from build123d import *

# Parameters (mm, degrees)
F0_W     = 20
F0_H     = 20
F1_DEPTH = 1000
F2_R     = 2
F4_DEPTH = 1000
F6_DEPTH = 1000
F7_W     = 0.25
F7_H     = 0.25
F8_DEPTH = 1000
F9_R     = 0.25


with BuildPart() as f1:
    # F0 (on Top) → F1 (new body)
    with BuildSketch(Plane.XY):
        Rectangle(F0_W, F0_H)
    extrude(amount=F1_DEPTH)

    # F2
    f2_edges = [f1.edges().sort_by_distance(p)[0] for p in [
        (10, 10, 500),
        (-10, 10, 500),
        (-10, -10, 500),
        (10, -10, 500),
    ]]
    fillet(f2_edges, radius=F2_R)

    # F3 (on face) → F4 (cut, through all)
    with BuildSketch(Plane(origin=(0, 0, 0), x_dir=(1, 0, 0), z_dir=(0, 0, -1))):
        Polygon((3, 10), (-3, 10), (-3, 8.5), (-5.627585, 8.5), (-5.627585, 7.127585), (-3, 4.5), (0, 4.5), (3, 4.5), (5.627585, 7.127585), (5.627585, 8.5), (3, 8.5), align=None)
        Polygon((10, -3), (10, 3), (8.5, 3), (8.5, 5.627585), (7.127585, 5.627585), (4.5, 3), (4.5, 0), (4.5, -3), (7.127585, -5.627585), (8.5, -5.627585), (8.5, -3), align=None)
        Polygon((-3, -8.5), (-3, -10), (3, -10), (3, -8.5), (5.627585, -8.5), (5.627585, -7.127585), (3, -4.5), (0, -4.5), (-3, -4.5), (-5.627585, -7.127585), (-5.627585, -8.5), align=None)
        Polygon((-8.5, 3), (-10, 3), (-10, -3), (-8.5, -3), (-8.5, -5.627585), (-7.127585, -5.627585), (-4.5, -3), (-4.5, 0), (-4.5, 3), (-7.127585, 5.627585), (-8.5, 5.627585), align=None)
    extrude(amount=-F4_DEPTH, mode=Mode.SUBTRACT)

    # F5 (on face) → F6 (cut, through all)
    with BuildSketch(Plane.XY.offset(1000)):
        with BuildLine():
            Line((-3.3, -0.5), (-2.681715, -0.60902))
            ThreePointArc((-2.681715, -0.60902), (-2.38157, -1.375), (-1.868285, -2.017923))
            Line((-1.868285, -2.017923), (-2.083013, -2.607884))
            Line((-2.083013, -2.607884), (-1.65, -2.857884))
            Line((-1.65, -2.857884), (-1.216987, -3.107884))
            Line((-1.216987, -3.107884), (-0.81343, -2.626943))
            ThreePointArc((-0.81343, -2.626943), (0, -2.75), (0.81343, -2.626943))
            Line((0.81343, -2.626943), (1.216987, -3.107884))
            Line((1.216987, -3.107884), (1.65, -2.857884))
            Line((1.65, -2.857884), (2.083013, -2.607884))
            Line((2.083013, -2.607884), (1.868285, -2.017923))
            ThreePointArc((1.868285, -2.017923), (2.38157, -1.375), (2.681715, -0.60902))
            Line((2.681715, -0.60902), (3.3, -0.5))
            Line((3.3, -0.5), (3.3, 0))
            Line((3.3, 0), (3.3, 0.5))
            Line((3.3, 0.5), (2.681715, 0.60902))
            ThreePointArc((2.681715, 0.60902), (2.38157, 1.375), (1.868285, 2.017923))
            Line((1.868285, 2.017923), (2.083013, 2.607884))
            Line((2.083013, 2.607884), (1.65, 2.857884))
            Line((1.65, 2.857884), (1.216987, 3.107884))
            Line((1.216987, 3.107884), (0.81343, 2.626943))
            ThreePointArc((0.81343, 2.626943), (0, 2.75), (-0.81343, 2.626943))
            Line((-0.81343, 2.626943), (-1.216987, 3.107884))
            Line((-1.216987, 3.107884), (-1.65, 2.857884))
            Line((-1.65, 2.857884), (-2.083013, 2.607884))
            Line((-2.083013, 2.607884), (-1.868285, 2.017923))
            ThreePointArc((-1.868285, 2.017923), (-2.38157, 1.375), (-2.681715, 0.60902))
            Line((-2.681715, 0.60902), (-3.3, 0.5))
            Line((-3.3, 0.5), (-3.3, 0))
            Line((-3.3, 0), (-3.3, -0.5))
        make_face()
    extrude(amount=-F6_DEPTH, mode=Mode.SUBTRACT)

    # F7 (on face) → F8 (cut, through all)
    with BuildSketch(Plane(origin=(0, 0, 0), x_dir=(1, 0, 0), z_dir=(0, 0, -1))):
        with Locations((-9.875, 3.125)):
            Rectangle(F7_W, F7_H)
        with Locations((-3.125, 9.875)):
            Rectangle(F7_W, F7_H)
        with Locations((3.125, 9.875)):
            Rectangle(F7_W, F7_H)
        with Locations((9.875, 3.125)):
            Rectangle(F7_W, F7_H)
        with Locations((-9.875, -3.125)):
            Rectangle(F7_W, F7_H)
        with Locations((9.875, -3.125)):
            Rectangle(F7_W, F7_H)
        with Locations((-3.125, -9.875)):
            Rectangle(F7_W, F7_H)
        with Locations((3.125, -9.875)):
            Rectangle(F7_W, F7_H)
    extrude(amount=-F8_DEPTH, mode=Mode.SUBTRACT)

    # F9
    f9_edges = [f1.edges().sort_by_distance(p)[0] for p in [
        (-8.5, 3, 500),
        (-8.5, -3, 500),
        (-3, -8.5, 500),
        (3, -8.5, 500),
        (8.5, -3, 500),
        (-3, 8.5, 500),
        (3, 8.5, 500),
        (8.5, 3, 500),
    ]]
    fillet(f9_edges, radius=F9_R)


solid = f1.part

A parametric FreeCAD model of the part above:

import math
import FreeCAD as App
import Part
import Sketcher
Q = App.Units.Quantity


def edges_at(feature, points):
    """Names of the edges that pass closest to the given points."""
    edges = feature.Shape.Edges
    near = lambda p: min(range(len(edges)), key=lambda i: edges[i].distToShape(Part.Vertex(*p))[0])
    return sorted({f"Edge{near(p) + 1}" for p in points})

doc = App.newDocument("Part")
body = doc.addObject("PartDesign::Body", "Body")

# Sketch on XY plane
sketch1 = doc.addObject("Sketcher::SketchObject", "Sketch")
body.addObject(sketch1)
sketch1.AttachmentSupport = (doc.XY_Plane, [""])
sketch1.MapMode = "FlatFace"
sketch1.addGeometry(Part.LineSegment(App.Vector(-10, 10, 0), App.Vector(-10, -10, 0)), False)
sketch1.addGeometry(Part.LineSegment(App.Vector(-10, -10, 0), App.Vector(10, -10, 0)), False)
sketch1.addGeometry(Part.LineSegment(App.Vector(10, -10, 0), App.Vector(10, 10, 0)), False)
sketch1.addGeometry(Part.LineSegment(App.Vector(10, 10, 0), App.Vector(-10, 10, 0)), False)
sketch1.addConstraint(Sketcher.Constraint("Coincident", 0, 2, 1, 1))
sketch1.addConstraint(Sketcher.Constraint("Coincident", 1, 2, 2, 1))
sketch1.addConstraint(Sketcher.Constraint("Coincident", 2, 2, 3, 1))
sketch1.addConstraint(Sketcher.Constraint("Coincident", 3, 2, 0, 1))
sketch1.addConstraint(Sketcher.Constraint("Vertical", 0))
sketch1.addConstraint(Sketcher.Constraint("Horizontal", 1))
sketch1.addConstraint(Sketcher.Constraint("Vertical", 2))
sketch1.addConstraint(Sketcher.Constraint("Horizontal", 3))
sketch1.addConstraint(Sketcher.Constraint("Symmetric", 0, 2, 2, 2, -1, 1))
sketch1.addConstraint(Sketcher.Constraint("Equal", 3, 0))
sketch1.addConstraint(Sketcher.Constraint("DistanceX", 1, 1, 1, 2, Q("20 mm")))
pad1 = doc.addObject("PartDesign::Pad", "Pad")
body.addObject(pad1)
pad1.Profile = sketch1
pad1.Length = 1000
doc.recompute()

fillet = doc.addObject("PartDesign::Fillet", "Fillet")
body.addObject(fillet)
fillet.Base = (pad1, edges_at(pad1, [
    (10, 10, 500),
    (-10, 10, 500),
    (-10, -10, 500),
    (10, -10, 500),
]))
fillet.Radius = 2

# Sketch on XY plane
sketch2 = doc.addObject("Sketcher::SketchObject", "Sketch001")
body.addObject(sketch2)
sketch2.AttachmentSupport = (doc.XY_Plane, [""])
sketch2.MapMode = "FlatFace"
sketch2.addGeometry(Part.LineSegment(App.Vector(3, -10, 0), App.Vector(-3, -10, 0)), False)
sketch2.addGeometry(Part.LineSegment(App.Vector(-3, -10, 0), App.Vector(-3, -8.5, 0)), False)
sketch2.addGeometry(Part.LineSegment(App.Vector(-3, -8.5, 0), App.Vector(-5.6, -8.5, 0)), False)
sketch2.addGeometry(Part.LineSegment(App.Vector(-5.6, -8.5, 0), App.Vector(-5.6, -7.1, 0)), False)
sketch2.addGeometry(Part.LineSegment(App.Vector(-5.6, -7.1, 0), App.Vector(-3, -4.5, 0)), False)
sketch2.addGeometry(Part.LineSegment(App.Vector(-3, -4.5, 0), App.Vector(3, -4.5, 0)), False)
sketch2.addGeometry(Part.LineSegment(App.Vector(3, -4.5, 0), App.Vector(5.6, -7.1, 0)), False)
sketch2.addGeometry(Part.LineSegment(App.Vector(5.6, -7.1, 0), App.Vector(5.6, -8.5, 0)), False)
sketch2.addGeometry(Part.LineSegment(App.Vector(5.6, -8.5, 0), App.Vector(3, -8.5, 0)), False)
sketch2.addGeometry(Part.LineSegment(App.Vector(3, -8.5, 0), App.Vector(3, -10, 0)), False)
sketch2.addGeometry(Part.LineSegment(App.Vector(10, 3, 0), App.Vector(10, -3, 0)), False)
sketch2.addGeometry(Part.LineSegment(App.Vector(10, -3, 0), App.Vector(8.5, -3, 0)), False)
sketch2.addGeometry(Part.LineSegment(App.Vector(8.5, -3, 0), App.Vector(8.5, -5.6, 0)), False)
sketch2.addGeometry(Part.LineSegment(App.Vector(8.5, -5.6, 0), App.Vector(7.1, -5.6, 0)), False)
sketch2.addGeometry(Part.LineSegment(App.Vector(7.1, -5.6, 0), App.Vector(4.5, -3, 0)), False)
sketch2.addGeometry(Part.LineSegment(App.Vector(4.5, -3, 0), App.Vector(4.5, 3, 0)), False)
sketch2.addGeometry(Part.LineSegment(App.Vector(4.5, 3, 0), App.Vector(7.1, 5.6, 0)), False)
sketch2.addGeometry(Part.LineSegment(App.Vector(7.1, 5.6, 0), App.Vector(8.5, 5.6, 0)), False)
sketch2.addGeometry(Part.LineSegment(App.Vector(8.5, 5.6, 0), App.Vector(8.5, 3, 0)), False)
sketch2.addGeometry(Part.LineSegment(App.Vector(8.5, 3, 0), App.Vector(10, 3, 0)), False)
sketch2.addGeometry(Part.LineSegment(App.Vector(-3, 8.5, 0), App.Vector(-3, 10, 0)), False)
sketch2.addGeometry(Part.LineSegment(App.Vector(-3, 10, 0), App.Vector(3, 10, 0)), False)
sketch2.addGeometry(Part.LineSegment(App.Vector(3, 10, 0), App.Vector(3, 8.5, 0)), False)
sketch2.addGeometry(Part.LineSegment(App.Vector(3, 8.5, 0), App.Vector(5.6, 8.5, 0)), False)
sketch2.addGeometry(Part.LineSegment(App.Vector(5.6, 8.5, 0), App.Vector(5.6, 7.1, 0)), False)
sketch2.addGeometry(Part.LineSegment(App.Vector(5.6, 7.1, 0), App.Vector(3, 4.5, 0)), False)
sketch2.addGeometry(Part.LineSegment(App.Vector(3, 4.5, 0), App.Vector(-3, 4.5, 0)), False)
sketch2.addGeometry(Part.LineSegment(App.Vector(-3, 4.5, 0), App.Vector(-5.6, 7.1, 0)), False)
sketch2.addGeometry(Part.LineSegment(App.Vector(-5.6, 7.1, 0), App.Vector(-5.6, 8.5, 0)), False)
sketch2.addGeometry(Part.LineSegment(App.Vector(-5.6, 8.5, 0), App.Vector(-3, 8.5, 0)), False)
sketch2.addGeometry(Part.LineSegment(App.Vector(-8.5, -3, 0), App.Vector(-10, -3, 0)), False)
sketch2.addGeometry(Part.LineSegment(App.Vector(-10, -3, 0), App.Vector(-10, 3, 0)), False)
sketch2.addGeometry(Part.LineSegment(App.Vector(-10, 3, 0), App.Vector(-8.5, 3, 0)), False)
sketch2.addGeometry(Part.LineSegment(App.Vector(-8.5, 3, 0), App.Vector(-8.5, 5.6, 0)), False)
sketch2.addGeometry(Part.LineSegment(App.Vector(-8.5, 5.6, 0), App.Vector(-7.1, 5.6, 0)), False)
sketch2.addGeometry(Part.LineSegment(App.Vector(-7.1, 5.6, 0), App.Vector(-4.5, 3, 0)), False)
sketch2.addGeometry(Part.LineSegment(App.Vector(-4.5, 3, 0), App.Vector(-4.5, -3, 0)), False)
sketch2.addGeometry(Part.LineSegment(App.Vector(-4.5, -3, 0), App.Vector(-7.1, -5.6, 0)), False)
sketch2.addGeometry(Part.LineSegment(App.Vector(-7.1, -5.6, 0), App.Vector(-8.5, -5.6, 0)), False)
sketch2.addGeometry(Part.LineSegment(App.Vector(-8.5, -5.6, 0), App.Vector(-8.5, -3, 0)), False)
sketch2.addConstraint(Sketcher.Constraint("Coincident", 0, 2, 1, 1))
sketch2.addConstraint(Sketcher.Constraint("Coincident", 1, 2, 2, 1))
sketch2.addConstraint(Sketcher.Constraint("Coincident", 2, 2, 3, 1))
sketch2.addConstraint(Sketcher.Constraint("Coincident", 3, 2, 4, 1))
sketch2.addConstraint(Sketcher.Constraint("Coincident", 4, 2, 5, 1))
sketch2.addConstraint(Sketcher.Constraint("Coincident", 5, 2, 6, 1))
sketch2.addConstraint(Sketcher.Constraint("Coincident", 6, 2, 7, 1))
sketch2.addConstraint(Sketcher.Constraint("Coincident", 7, 2, 8, 1))
sketch2.addConstraint(Sketcher.Constraint("Coincident", 8, 2, 9, 1))
sketch2.addConstraint(Sketcher.Constraint("Coincident", 9, 2, 0, 1))
sketch2.addConstraint(Sketcher.Constraint("Coincident", 10, 2, 11, 1))
sketch2.addConstraint(Sketcher.Constraint("Coincident", 11, 2, 12, 1))
sketch2.addConstraint(Sketcher.Constraint("Coincident", 12, 2, 13, 1))
sketch2.addConstraint(Sketcher.Constraint("Coincident", 13, 2, 14, 1))
sketch2.addConstraint(Sketcher.Constraint("Coincident", 14, 2, 15, 1))
sketch2.addConstraint(Sketcher.Constraint("Coincident", 15, 2, 16, 1))
sketch2.addConstraint(Sketcher.Constraint("Coincident", 16, 2, 17, 1))
sketch2.addConstraint(Sketcher.Constraint("Coincident", 17, 2, 18, 1))
sketch2.addConstraint(Sketcher.Constraint("Coincident", 18, 2, 19, 1))
sketch2.addConstraint(Sketcher.Constraint("Coincident", 19, 2, 10, 1))
sketch2.addConstraint(Sketcher.Constraint("Coincident", 20, 2, 21, 1))
sketch2.addConstraint(Sketcher.Constraint("Coincident", 21, 2, 22, 1))
sketch2.addConstraint(Sketcher.Constraint("Coincident", 22, 2, 23, 1))
sketch2.addConstraint(Sketcher.Constraint("Coincident", 23, 2, 24, 1))
sketch2.addConstraint(Sketcher.Constraint("Coincident", 24, 2, 25, 1))
sketch2.addConstraint(Sketcher.Constraint("Coincident", 25, 2, 26, 1))
sketch2.addConstraint(Sketcher.Constraint("Coincident", 26, 2, 27, 1))
sketch2.addConstraint(Sketcher.Constraint("Coincident", 27, 2, 28, 1))
sketch2.addConstraint(Sketcher.Constraint("Coincident", 28, 2, 29, 1))
sketch2.addConstraint(Sketcher.Constraint("Coincident", 29, 2, 20, 1))
sketch2.addConstraint(Sketcher.Constraint("Coincident", 30, 2, 31, 1))
sketch2.addConstraint(Sketcher.Constraint("Coincident", 31, 2, 32, 1))
sketch2.addConstraint(Sketcher.Constraint("Coincident", 32, 2, 33, 1))
sketch2.addConstraint(Sketcher.Constraint("Coincident", 33, 2, 34, 1))
sketch2.addConstraint(Sketcher.Constraint("Coincident", 34, 2, 35, 1))
sketch2.addConstraint(Sketcher.Constraint("Coincident", 35, 2, 36, 1))
sketch2.addConstraint(Sketcher.Constraint("Coincident", 36, 2, 37, 1))
sketch2.addConstraint(Sketcher.Constraint("Coincident", 37, 2, 38, 1))
sketch2.addConstraint(Sketcher.Constraint("Coincident", 38, 2, 39, 1))
sketch2.addConstraint(Sketcher.Constraint("Coincident", 39, 2, 30, 1))
sketch2.addConstraint(Sketcher.Constraint("Horizontal", 0))
sketch2.addConstraint(Sketcher.Constraint("Vertical", 1))
sketch2.addConstraint(Sketcher.Constraint("Horizontal", 2))
sketch2.addConstraint(Sketcher.Constraint("Vertical", 3))
sketch2.addConstraint(Sketcher.Constraint("Horizontal", 5))
sketch2.addConstraint(Sketcher.Constraint("Vertical", 7))
sketch2.addConstraint(Sketcher.Constraint("Horizontal", 8))
sketch2.addConstraint(Sketcher.Constraint("Vertical", 9))
sketch2.addConstraint(Sketcher.Constraint("Vertical", 10))
sketch2.addConstraint(Sketcher.Constraint("Horizontal", 11))
sketch2.addConstraint(Sketcher.Constraint("Vertical", 12))
sketch2.addConstraint(Sketcher.Constraint("Horizontal", 13))
sketch2.addConstraint(Sketcher.Constraint("Vertical", 15))
sketch2.addConstraint(Sketcher.Constraint("Horizontal", 17))
sketch2.addConstraint(Sketcher.Constraint("Vertical", 18))
sketch2.addConstraint(Sketcher.Constraint("Horizontal", 19))
sketch2.addConstraint(Sketcher.Constraint("Vertical", 20))
sketch2.addConstraint(Sketcher.Constraint("Horizontal", 21))
sketch2.addConstraint(Sketcher.Constraint("Vertical", 22))
sketch2.addConstraint(Sketcher.Constraint("Horizontal", 23))
sketch2.addConstraint(Sketcher.Constraint("Vertical", 24))
sketch2.addConstraint(Sketcher.Constraint("Horizontal", 26))
sketch2.addConstraint(Sketcher.Constraint("Vertical", 28))
sketch2.addConstraint(Sketcher.Constraint("Horizontal", 29))
sketch2.addConstraint(Sketcher.Constraint("Horizontal", 30))
sketch2.addConstraint(Sketcher.Constraint("Vertical", 31))
sketch2.addConstraint(Sketcher.Constraint("Horizontal", 32))
sketch2.addConstraint(Sketcher.Constraint("Vertical", 33))
sketch2.addConstraint(Sketcher.Constraint("Horizontal", 34))
sketch2.addConstraint(Sketcher.Constraint("Vertical", 36))
sketch2.addConstraint(Sketcher.Constraint("Horizontal", 38))
sketch2.addConstraint(Sketcher.Constraint("Vertical", 39))
sketch2.addConstraint(Sketcher.Constraint("Symmetric", 9, 2, 20, 2, -1, 1))
sketch2.addConstraint(Sketcher.Constraint("Symmetric", 1, 2, 22, 2, -1, 1))
sketch2.addConstraint(Sketcher.Constraint("Symmetric", 3, 2, 24, 2, -1, 1))
sketch2.addConstraint(Sketcher.Constraint("Symmetric", 4, 2, 25, 2, -1, 1))
sketch2.addConstraint(Sketcher.Constraint("Symmetric", 6, 2, 27, 2, -1, 1))
sketch2.addConstraint(Sketcher.Constraint("Symmetric", 19, 2, 30, 2, -1, 1))
sketch2.addConstraint(Sketcher.Constraint("Symmetric", 11, 2, 32, 2, -1, 1))
sketch2.addConstraint(Sketcher.Constraint("Symmetric", 13, 2, 34, 2, -1, 1))
sketch2.addConstraint(Sketcher.Constraint("Symmetric", 14, 2, 35, 2, -1, 1))
sketch2.addConstraint(Sketcher.Constraint("Symmetric", 16, 2, 37, 2, -1, 1))
sketch2.addConstraint(Sketcher.Constraint("Symmetric", 3, 2, 6, 2, -2))
sketch2.addConstraint(Sketcher.Constraint("Symmetric", 1, 2, 8, 2, -2))
sketch2.addConstraint(Sketcher.Constraint("Symmetric", 18, 2, 32, 2, -2))
sketch2.addConstraint(Sketcher.Constraint("Symmetric", 16, 2, 34, 2, -2))
sketch2.addConstraint(Sketcher.Constraint("Perpendicular", 4, 6))
sketch2.addConstraint(Sketcher.Constraint("Parallel", 6, 14))
sketch2.addConstraint(Sketcher.Constraint("Perpendicular", 14, 16))
sketch2.addConstraint(Sketcher.Constraint("Perpendicular", 25, 27))
sketch2.addConstraint(Sketcher.Constraint("Perpendicular", 35, 37))
sketch2.addConstraint(Sketcher.Constraint("Horizontal", 11, 2, 14, 2))
sketch2.addConstraint(Sketcher.Constraint("Horizontal", 15, 2, 18, 2))
sketch2.addConstraint(Sketcher.Constraint("Horizontal", 23, 2, 28, 2))
sketch2.addConstraint(Sketcher.Constraint("Vertical", 1, 2, 4, 2))
sketch2.addConstraint(Sketcher.Constraint("Vertical", 33, 2, 38, 2))
sketch2.addConstraint(Sketcher.Constraint("Equal", 32, 1))
sketch2.addConstraint(Sketcher.Constraint("Equal", 38, 3))
sketch2.addConstraint(Sketcher.Constraint("Equal", 26, 10))
sketch2.addConstraint(Sketcher.Constraint("Equal", 29, 12))
sketch2.addConstraint(Sketcher.Constraint("DistanceX", 0, 2, 0, 1, Q("6 mm")))
sketch2.addConstraint(Sketcher.Constraint("DistanceX", 11, 2, 11, 1, Q("1.5 mm")))
sketch2.addConstraint(Sketcher.Constraint("DistanceY", 0, 2, -1, 1, Q("10 mm")))
sketch2.addConstraint(Sketcher.Constraint("DistanceX", -1, 1, 10, 2, Q("10 mm")))
sketch2.addConstraint(Sketcher.Constraint("DistanceY", 1, 2, 4, 2, Q("4 mm")))
sketch2.addConstraint(Sketcher.Constraint("DistanceX", 2, 2, 2, 1, Q("2.627585 mm")))
pocket1 = doc.addObject("PartDesign::Pocket", "Pocket")
body.addObject(pocket1)
pocket1.Profile = sketch2
pocket1.Type = "ThroughAll"
pocket1.Reversed = True

# Sketch on XY plane
sketch3 = doc.addObject("Sketcher::SketchObject", "Sketch002")
body.addObject(sketch3)
sketch3.AttachmentSupport = (doc.XY_Plane, [""])
sketch3.MapMode = "FlatFace"
sketch3.AttachmentOffset = App.Placement(App.Vector(0, 0, 1000), App.Rotation())
sketch3.addGeometry(Part.LineSegment(App.Vector(-3.3, -0.5, 0), App.Vector(-2.681715, -0.60902, 0)), False)
sketch3.addGeometry(Part.ArcOfCircle(Part.Circle(App.Vector(0.000003, 0.000001, 0), App.Vector(0, 0, 1), 2.750003), math.radians(-167.205084), math.radians(-132.794948)), False)
sketch3.addGeometry(Part.LineSegment(App.Vector(-1.868285, -2.017923, 0), App.Vector(-2.083013, -2.607884, 0)), False)
sketch3.addGeometry(Part.LineSegment(App.Vector(-2.083013, -2.607884, 0), App.Vector(-1.216987, -3.107884, 0)), False)
sketch3.addGeometry(Part.LineSegment(App.Vector(-1.216987, -3.107884, 0), App.Vector(-0.81343, -2.626943, 0)), False)
sketch3.addGeometry(Part.ArcOfCircle(Part.Circle(App.Vector(0, -0.000009, 0), App.Vector(0, 0, 1), 2.749991), math.radians(-107.205134), math.radians(-72.794866)), False)
sketch3.addGeometry(Part.LineSegment(App.Vector(0.81343, -2.626943, 0), App.Vector(1.216987, -3.107884, 0)), False)
sketch3.addGeometry(Part.LineSegment(App.Vector(1.216987, -3.107884, 0), App.Vector(2.083013, -2.607884, 0)), False)
sketch3.addGeometry(Part.LineSegment(App.Vector(2.083013, -2.607884, 0), App.Vector(1.868285, -2.017923, 0)), False)
sketch3.addGeometry(Part.ArcOfCircle(Part.Circle(App.Vector(-0.000003, 0.000001, 0), App.Vector(0, 0, 1), 2.750003), math.radians(-47.205052), math.radians(-12.794916)), False)
sketch3.addGeometry(Part.LineSegment(App.Vector(2.681715, -0.60902, 0), App.Vector(3.3, -0.5, 0)), False)
sketch3.addGeometry(Part.LineSegment(App.Vector(3.3, -0.5, 0), App.Vector(3.3, 0.5, 0)), False)
sketch3.addGeometry(Part.LineSegment(App.Vector(3.3, 0.5, 0), App.Vector(2.681715, 0.60902, 0)), False)
sketch3.addGeometry(Part.ArcOfCircle(Part.Circle(App.Vector(-0.000003, -0.000001, 0), App.Vector(0, 0, 1), 2.750003), math.radians(12.794916), math.radians(47.205052)), False)
sketch3.addGeometry(Part.LineSegment(App.Vector(1.868285, 2.017923, 0), App.Vector(2.083013, 2.607884, 0)), False)
sketch3.addGeometry(Part.LineSegment(App.Vector(2.083013, 2.607884, 0), App.Vector(1.216987, 3.107884, 0)), False)
sketch3.addGeometry(Part.LineSegment(App.Vector(1.216987, 3.107884, 0), App.Vector(0.81343, 2.626943, 0)), False)
sketch3.addGeometry(Part.ArcOfCircle(Part.Circle(App.Vector(0, 0.000009, 0), App.Vector(0, 0, 1), 2.749991), math.radians(72.794866), math.radians(107.205134)), False)
sketch3.addGeometry(Part.LineSegment(App.Vector(-0.81343, 2.626943, 0), App.Vector(-1.216987, 3.107884, 0)), False)
sketch3.addGeometry(Part.LineSegment(App.Vector(-1.216987, 3.107884, 0), App.Vector(-2.083013, 2.607884, 0)), False)
sketch3.addGeometry(Part.LineSegment(App.Vector(-2.083013, 2.607884, 0), App.Vector(-1.868285, 2.017923, 0)), False)
sketch3.addGeometry(Part.ArcOfCircle(Part.Circle(App.Vector(0.000003, -0.000001, 0), App.Vector(0, 0, 1), 2.750003), math.radians(132.794948), math.radians(167.205084)), False)
sketch3.addGeometry(Part.LineSegment(App.Vector(-2.681715, 0.60902, 0), App.Vector(-3.3, 0.5, 0)), False)
sketch3.addGeometry(Part.LineSegment(App.Vector(-3.3, 0.5, 0), App.Vector(-3.3, -0.5, 0)), False)
sketch3.addConstraint(Sketcher.Constraint("Coincident", 0, 2, 1, 1))
sketch3.addConstraint(Sketcher.Constraint("Coincident", 1, 2, 2, 1))
sketch3.addConstraint(Sketcher.Constraint("Coincident", 2, 2, 3, 1))
sketch3.addConstraint(Sketcher.Constraint("Coincident", 3, 2, 4, 1))
sketch3.addConstraint(Sketcher.Constraint("Coincident", 4, 2, 5, 1))
sketch3.addConstraint(Sketcher.Constraint("Coincident", 5, 2, 6, 1))
sketch3.addConstraint(Sketcher.Constraint("Coincident", 6, 2, 7, 1))
sketch3.addConstraint(Sketcher.Constraint("Coincident", 7, 2, 8, 1))
sketch3.addConstraint(Sketcher.Constraint("Coincident", 8, 2, 9, 1))
sketch3.addConstraint(Sketcher.Constraint("Coincident", 9, 2, 10, 1))
sketch3.addConstraint(Sketcher.Constraint("Coincident", 10, 2, 11, 1))
sketch3.addConstraint(Sketcher.Constraint("Coincident", 11, 2, 12, 1))
sketch3.addConstraint(Sketcher.Constraint("Coincident", 12, 2, 13, 1))
sketch3.addConstraint(Sketcher.Constraint("Coincident", 13, 2, 14, 1))
sketch3.addConstraint(Sketcher.Constraint("Coincident", 14, 2, 15, 1))
sketch3.addConstraint(Sketcher.Constraint("Coincident", 15, 2, 16, 1))
sketch3.addConstraint(Sketcher.Constraint("Coincident", 16, 2, 17, 1))
sketch3.addConstraint(Sketcher.Constraint("Coincident", 17, 2, 18, 1))
sketch3.addConstraint(Sketcher.Constraint("Coincident", 18, 2, 19, 1))
sketch3.addConstraint(Sketcher.Constraint("Coincident", 19, 2, 20, 1))
sketch3.addConstraint(Sketcher.Constraint("Coincident", 20, 2, 21, 1))
sketch3.addConstraint(Sketcher.Constraint("Coincident", 21, 2, 22, 1))
sketch3.addConstraint(Sketcher.Constraint("Coincident", 22, 2, 23, 1))
sketch3.addConstraint(Sketcher.Constraint("Coincident", 23, 2, 0, 1))
sketch3.addConstraint(Sketcher.Constraint("Vertical", 11))
sketch3.addConstraint(Sketcher.Constraint("Vertical", 23))
sketch3.addConstraint(Sketcher.Constraint("Coincident", 1, 3, -1, 1))
sketch3.addConstraint(Sketcher.Constraint("Coincident", 5, 3, -1, 1))
sketch3.addConstraint(Sketcher.Constraint("Coincident", 9, 3, -1, 1))
sketch3.addConstraint(Sketcher.Constraint("Coincident", 13, 3, -1, 1))
sketch3.addConstraint(Sketcher.Constraint("Coincident", 17, 3, -1, 1))
sketch3.addConstraint(Sketcher.Constraint("Coincident", 21, 3, -1, 1))
sketch3.addConstraint(Sketcher.Constraint("DistanceY", 11, 1, 11, 2, Q("1 mm")))
sketch3.addConstraint(Sketcher.Constraint("DistanceY", 23, 2, 23, 1, Q("1 mm")))
sketch3.addConstraint(Sketcher.Constraint("Distance", 3, Q("1.000001 mm")))
sketch3.addConstraint(Sketcher.Constraint("Distance", 7, Q("1.000001 mm")))
sketch3.addConstraint(Sketcher.Constraint("Distance", 15, Q("1.000001 mm")))
sketch3.addConstraint(Sketcher.Constraint("Distance", 19, Q("1.000001 mm")))
sketch3.addConstraint(Sketcher.Constraint("DistanceX", -1, 1, 10, 2, Q("3.3 mm")))
sketch3.addConstraint(Sketcher.Constraint("DistanceY", 10, 2, -1, 1, Q("0.5 mm")))
sketch3.addConstraint(Sketcher.Constraint("DistanceX", 22, 2, -1, 1, Q("3.3 mm")))
sketch3.addConstraint(Sketcher.Constraint("DistanceY", -1, 1, 22, 2, Q("0.5 mm")))
sketch3.addConstraint(Sketcher.Constraint("DistanceY", 3, 2, 2, 2, Q("0.5 mm")))
sketch3.addConstraint(Sketcher.Constraint("DistanceY", 6, 2, 7, 2, Q("0.5 mm")))
sketch3.addConstraint(Sketcher.Constraint("DistanceY", 14, 2, 15, 2, Q("0.5 mm")))
sketch3.addConstraint(Sketcher.Constraint("DistanceY", 19, 2, 18, 2, Q("0.5 mm")))
sketch3.addConstraint(Sketcher.Constraint("Radius", 5, Q("2.749991 mm")))
sketch3.addConstraint(Sketcher.Constraint("Radius", 17, Q("2.749991 mm")))
sketch3.addConstraint(Sketcher.Constraint("Radius", 1, Q("2.750003 mm")))
sketch3.addConstraint(Sketcher.Constraint("Radius", 9, Q("2.750003 mm")))
sketch3.addConstraint(Sketcher.Constraint("Radius", 13, Q("2.750003 mm")))
sketch3.addConstraint(Sketcher.Constraint("Radius", 21, Q("2.750003 mm")))
sketch3.addConstraint(Sketcher.Constraint("DistanceX", 1, 2, 3, 2, Q("0.651298 mm")))
sketch3.addConstraint(Sketcher.Constraint("DistanceX", 15, 2, 13, 2, Q("0.651298 mm")))
sketch3.addConstraint(Sketcher.Constraint("DistanceY", 0, 2, -1, 1, Q("0.60902 mm")))
sketch3.addConstraint(Sketcher.Constraint("DistanceX", 4, 2, -1, 1, Q("0.81343 mm")))
sketch3.addConstraint(Sketcher.Constraint("DistanceX", -1, 1, 5, 2, Q("0.81343 mm")))
sketch3.addConstraint(Sketcher.Constraint("DistanceY", 9, 2, -1, 1, Q("0.60902 mm")))
sketch3.addConstraint(Sketcher.Constraint("DistanceY", -1, 1, 12, 2, Q("0.60902 mm")))
sketch3.addConstraint(Sketcher.Constraint("DistanceX", -1, 1, 16, 2, Q("0.81343 mm")))
sketch3.addConstraint(Sketcher.Constraint("DistanceX", 17, 2, -1, 1, Q("0.81343 mm")))
sketch3.addConstraint(Sketcher.Constraint("DistanceY", -1, 1, 21, 2, Q("0.60902 mm")))
sketch3.addConstraint(Sketcher.Constraint("DistanceX", 0, 2, 1, 2, Q("0.81343 mm")))
sketch3.addConstraint(Sketcher.Constraint("DistanceY", 2, 2, 1, 2, Q("0.589961 mm")))
sketch3.addConstraint(Sketcher.Constraint("DistanceY", 6, 2, 5, 2, Q("0.480941 mm")))
sketch3.addConstraint(Sketcher.Constraint("DistanceX", 21, 3, 7, 2, Q("2.08301 mm")))
sketch3.addConstraint(Sketcher.Constraint("DistanceY", 7, 2, 8, 2, Q("0.589961 mm")))
sketch3.addConstraint(Sketcher.Constraint("DistanceX", 13, 2, 12, 2, Q("0.81343 mm")))
sketch3.addConstraint(Sketcher.Constraint("DistanceY", 13, 2, 14, 2, Q("0.589961 mm")))
sketch3.addConstraint(Sketcher.Constraint("DistanceY", 17, 2, 18, 2, Q("0.480941 mm")))
sketch3.addConstraint(Sketcher.Constraint("DistanceY", 20, 2, 19, 2, Q("0.589961 mm")))
sketch3.addConstraint(Sketcher.Constraint("Distance", 18, Q("0.627824 mm")))
pocket2 = doc.addObject("PartDesign::Pocket", "Pocket001")
body.addObject(pocket2)
pocket2.Profile = sketch3
pocket2.Type = "ThroughAll"

# Sketch on XY plane
sketch4 = doc.addObject("Sketcher::SketchObject", "Sketch003")
body.addObject(sketch4)
sketch4.AttachmentSupport = (doc.XY_Plane, [""])
sketch4.MapMode = "FlatFace"
sketch4.addGeometry(Part.LineSegment(App.Vector(-10, -3.25, 0), App.Vector(-10, -3, 0)), False)
sketch4.addGeometry(Part.LineSegment(App.Vector(-10, -3, 0), App.Vector(-9.75, -3, 0)), False)
sketch4.addGeometry(Part.LineSegment(App.Vector(-9.75, -3, 0), App.Vector(-9.75, -3.25, 0)), False)
sketch4.addGeometry(Part.LineSegment(App.Vector(-9.75, -3.25, 0), App.Vector(-10, -3.25, 0)), False)
sketch4.addGeometry(Part.LineSegment(App.Vector(-3.25, -10, 0), App.Vector(-3.25, -9.75, 0)), False)
sketch4.addGeometry(Part.LineSegment(App.Vector(-3.25, -9.75, 0), App.Vector(-3, -9.75, 0)), False)
sketch4.addGeometry(Part.LineSegment(App.Vector(-3, -9.75, 0), App.Vector(-3, -10, 0)), False)
sketch4.addGeometry(Part.LineSegment(App.Vector(-3, -10, 0), App.Vector(-3.25, -10, 0)), False)
sketch4.addGeometry(Part.LineSegment(App.Vector(3, -10, 0), App.Vector(3, -9.75, 0)), False)
sketch4.addGeometry(Part.LineSegment(App.Vector(3, -9.75, 0), App.Vector(3.25, -9.75, 0)), False)
sketch4.addGeometry(Part.LineSegment(App.Vector(3.25, -9.75, 0), App.Vector(3.25, -10, 0)), False)
sketch4.addGeometry(Part.LineSegment(App.Vector(3.25, -10, 0), App.Vector(3, -10, 0)), False)
sketch4.addGeometry(Part.LineSegment(App.Vector(9.75, -3.25, 0), App.Vector(9.75, -3, 0)), False)
sketch4.addGeometry(Part.LineSegment(App.Vector(9.75, -3, 0), App.Vector(10, -3, 0)), False)
sketch4.addGeometry(Part.LineSegment(App.Vector(10, -3, 0), App.Vector(10, -3.25, 0)), False)
sketch4.addGeometry(Part.LineSegment(App.Vector(10, -3.25, 0), App.Vector(9.75, -3.25, 0)), False)
sketch4.addGeometry(Part.LineSegment(App.Vector(-10, 3, 0), App.Vector(-10, 3.25, 0)), False)
sketch4.addGeometry(Part.LineSegment(App.Vector(-10, 3.25, 0), App.Vector(-9.75, 3.25, 0)), False)
sketch4.addGeometry(Part.LineSegment(App.Vector(-9.75, 3.25, 0), App.Vector(-9.75, 3, 0)), False)
sketch4.addGeometry(Part.LineSegment(App.Vector(-9.75, 3, 0), App.Vector(-10, 3, 0)), False)
sketch4.addGeometry(Part.LineSegment(App.Vector(9.75, 3, 0), App.Vector(9.75, 3.25, 0)), False)
sketch4.addGeometry(Part.LineSegment(App.Vector(9.75, 3.25, 0), App.Vector(10, 3.25, 0)), False)
sketch4.addGeometry(Part.LineSegment(App.Vector(10, 3.25, 0), App.Vector(10, 3, 0)), False)
sketch4.addGeometry(Part.LineSegment(App.Vector(10, 3, 0), App.Vector(9.75, 3, 0)), False)
sketch4.addGeometry(Part.LineSegment(App.Vector(-3.25, 9.75, 0), App.Vector(-3.25, 10, 0)), False)
sketch4.addGeometry(Part.LineSegment(App.Vector(-3.25, 10, 0), App.Vector(-3, 10, 0)), False)
sketch4.addGeometry(Part.LineSegment(App.Vector(-3, 10, 0), App.Vector(-3, 9.75, 0)), False)
sketch4.addGeometry(Part.LineSegment(App.Vector(-3, 9.75, 0), App.Vector(-3.25, 9.75, 0)), False)
sketch4.addGeometry(Part.LineSegment(App.Vector(3, 9.75, 0), App.Vector(3, 10, 0)), False)
sketch4.addGeometry(Part.LineSegment(App.Vector(3, 10, 0), App.Vector(3.25, 10, 0)), False)
sketch4.addGeometry(Part.LineSegment(App.Vector(3.25, 10, 0), App.Vector(3.25, 9.75, 0)), False)
sketch4.addGeometry(Part.LineSegment(App.Vector(3.25, 9.75, 0), App.Vector(3, 9.75, 0)), False)
sketch4.addConstraint(Sketcher.Constraint("Coincident", 0, 2, 1, 1))
sketch4.addConstraint(Sketcher.Constraint("Coincident", 1, 2, 2, 1))
sketch4.addConstraint(Sketcher.Constraint("Coincident", 2, 2, 3, 1))
sketch4.addConstraint(Sketcher.Constraint("Coincident", 3, 2, 0, 1))
sketch4.addConstraint(Sketcher.Constraint("Coincident", 4, 2, 5, 1))
sketch4.addConstraint(Sketcher.Constraint("Coincident", 5, 2, 6, 1))
sketch4.addConstraint(Sketcher.Constraint("Coincident", 6, 2, 7, 1))
sketch4.addConstraint(Sketcher.Constraint("Coincident", 7, 2, 4, 1))
sketch4.addConstraint(Sketcher.Constraint("Coincident", 8, 2, 9, 1))
sketch4.addConstraint(Sketcher.Constraint("Coincident", 9, 2, 10, 1))
sketch4.addConstraint(Sketcher.Constraint("Coincident", 10, 2, 11, 1))
sketch4.addConstraint(Sketcher.Constraint("Coincident", 11, 2, 8, 1))
sketch4.addConstraint(Sketcher.Constraint("Coincident", 12, 2, 13, 1))
sketch4.addConstraint(Sketcher.Constraint("Coincident", 13, 2, 14, 1))
sketch4.addConstraint(Sketcher.Constraint("Coincident", 14, 2, 15, 1))
sketch4.addConstraint(Sketcher.Constraint("Coincident", 15, 2, 12, 1))
sketch4.addConstraint(Sketcher.Constraint("Coincident", 16, 2, 17, 1))
sketch4.addConstraint(Sketcher.Constraint("Coincident", 17, 2, 18, 1))
sketch4.addConstraint(Sketcher.Constraint("Coincident", 18, 2, 19, 1))
sketch4.addConstraint(Sketcher.Constraint("Coincident", 19, 2, 16, 1))
sketch4.addConstraint(Sketcher.Constraint("Coincident", 20, 2, 21, 1))
sketch4.addConstraint(Sketcher.Constraint("Coincident", 21, 2, 22, 1))
sketch4.addConstraint(Sketcher.Constraint("Coincident", 22, 2, 23, 1))
sketch4.addConstraint(Sketcher.Constraint("Coincident", 23, 2, 20, 1))
sketch4.addConstraint(Sketcher.Constraint("Coincident", 24, 2, 25, 1))
sketch4.addConstraint(Sketcher.Constraint("Coincident", 25, 2, 26, 1))
sketch4.addConstraint(Sketcher.Constraint("Coincident", 26, 2, 27, 1))
sketch4.addConstraint(Sketcher.Constraint("Coincident", 27, 2, 24, 1))
sketch4.addConstraint(Sketcher.Constraint("Coincident", 28, 2, 29, 1))
sketch4.addConstraint(Sketcher.Constraint("Coincident", 29, 2, 30, 1))
sketch4.addConstraint(Sketcher.Constraint("Coincident", 30, 2, 31, 1))
sketch4.addConstraint(Sketcher.Constraint("Coincident", 31, 2, 28, 1))
sketch4.addConstraint(Sketcher.Constraint("Vertical", 0))
sketch4.addConstraint(Sketcher.Constraint("Horizontal", 1))
sketch4.addConstraint(Sketcher.Constraint("Vertical", 2))
sketch4.addConstraint(Sketcher.Constraint("Horizontal", 3))
sketch4.addConstraint(Sketcher.Constraint("Vertical", 4))
sketch4.addConstraint(Sketcher.Constraint("Horizontal", 5))
sketch4.addConstraint(Sketcher.Constraint("Vertical", 6))
sketch4.addConstraint(Sketcher.Constraint("Horizontal", 7))
sketch4.addConstraint(Sketcher.Constraint("Vertical", 8))
sketch4.addConstraint(Sketcher.Constraint("Horizontal", 9))
sketch4.addConstraint(Sketcher.Constraint("Vertical", 10))
sketch4.addConstraint(Sketcher.Constraint("Horizontal", 11))
sketch4.addConstraint(Sketcher.Constraint("Vertical", 12))
sketch4.addConstraint(Sketcher.Constraint("Horizontal", 13))
sketch4.addConstraint(Sketcher.Constraint("Vertical", 14))
sketch4.addConstraint(Sketcher.Constraint("Horizontal", 15))
sketch4.addConstraint(Sketcher.Constraint("Vertical", 16))
sketch4.addConstraint(Sketcher.Constraint("Horizontal", 17))
sketch4.addConstraint(Sketcher.Constraint("Vertical", 18))
sketch4.addConstraint(Sketcher.Constraint("Horizontal", 19))
sketch4.addConstraint(Sketcher.Constraint("Vertical", 20))
sketch4.addConstraint(Sketcher.Constraint("Horizontal", 21))
sketch4.addConstraint(Sketcher.Constraint("Vertical", 22))
sketch4.addConstraint(Sketcher.Constraint("Horizontal", 23))
sketch4.addConstraint(Sketcher.Constraint("Vertical", 24))
sketch4.addConstraint(Sketcher.Constraint("Horizontal", 25))
sketch4.addConstraint(Sketcher.Constraint("Vertical", 26))
sketch4.addConstraint(Sketcher.Constraint("Horizontal", 27))
sketch4.addConstraint(Sketcher.Constraint("Vertical", 28))
sketch4.addConstraint(Sketcher.Constraint("Horizontal", 29))
sketch4.addConstraint(Sketcher.Constraint("Vertical", 30))
sketch4.addConstraint(Sketcher.Constraint("Horizontal", 31))
sketch4.addConstraint(Sketcher.Constraint("Symmetric", 14, 2, 16, 2, -1, 1))
sketch4.addConstraint(Sketcher.Constraint("Symmetric", 12, 2, 18, 2, -1, 1))
sketch4.addConstraint(Sketcher.Constraint("Symmetric", 2, 2, 20, 2, -1, 1))
sketch4.addConstraint(Sketcher.Constraint("Symmetric", 0, 2, 22, 2, -1, 1))
sketch4.addConstraint(Sketcher.Constraint("Symmetric", 10, 2, 24, 2, -1, 1))
sketch4.addConstraint(Sketcher.Constraint("Symmetric", 8, 2, 26, 2, -1, 1))
sketch4.addConstraint(Sketcher.Constraint("Symmetric", 6, 2, 28, 2, -1, 1))
sketch4.addConstraint(Sketcher.Constraint("Symmetric", 4, 2, 30, 2, -1, 1))
sketch4.addConstraint(Sketcher.Constraint("Symmetric", 5, 2, 8, 2, -2))
sketch4.addConstraint(Sketcher.Constraint("Symmetric", 7, 2, 10, 2, -2))
sketch4.addConstraint(Sketcher.Constraint("Symmetric", 1, 2, 12, 2, -2))
sketch4.addConstraint(Sketcher.Constraint("Symmetric", 3, 2, 14, 2, -2))
sketch4.addConstraint(Sketcher.Constraint("Equal", 3, 5))
sketch4.addConstraint(Sketcher.Constraint("Equal", 31, 0))
sketch4.addConstraint(Sketcher.Constraint("Equal", 2, 4))
sketch4.addConstraint(Sketcher.Constraint("DistanceX", 0, 2, -1, 1, Q("10 mm")))
sketch4.addConstraint(Sketcher.Constraint("DistanceY", 0, 2, -1, 1, Q("3 mm")))
sketch4.addConstraint(Sketcher.Constraint("DistanceX", 5, 2, -1, 1, Q("3 mm")))
sketch4.addConstraint(Sketcher.Constraint("DistanceY", 6, 2, -1, 1, Q("10 mm")))
sketch4.addConstraint(Sketcher.Constraint("DistanceX", 1, 1, 1, 2, Q("0.25 mm")))
pocket3 = doc.addObject("PartDesign::Pocket", "Pocket002")
body.addObject(pocket3)
pocket3.Profile = sketch4
pocket3.Type = "ThroughAll"
pocket3.Reversed = True
doc.recompute()

fillet2 = doc.addObject("PartDesign::Fillet", "Fillet001")
body.addObject(fillet2)
fillet2.Base = (pocket3, edges_at(pocket3, [
    (-8.5, 3, 500),
    (-8.5, -3, 500),
    (-3, -8.5, 500),
    (3, -8.5, 500),
    (8.5, -3, 500),
    (-3, 8.5, 500),
    (3, 8.5, 500),
    (8.5, 3, 500),
]))
fillet2.Radius = 0.25

doc.recompute()
